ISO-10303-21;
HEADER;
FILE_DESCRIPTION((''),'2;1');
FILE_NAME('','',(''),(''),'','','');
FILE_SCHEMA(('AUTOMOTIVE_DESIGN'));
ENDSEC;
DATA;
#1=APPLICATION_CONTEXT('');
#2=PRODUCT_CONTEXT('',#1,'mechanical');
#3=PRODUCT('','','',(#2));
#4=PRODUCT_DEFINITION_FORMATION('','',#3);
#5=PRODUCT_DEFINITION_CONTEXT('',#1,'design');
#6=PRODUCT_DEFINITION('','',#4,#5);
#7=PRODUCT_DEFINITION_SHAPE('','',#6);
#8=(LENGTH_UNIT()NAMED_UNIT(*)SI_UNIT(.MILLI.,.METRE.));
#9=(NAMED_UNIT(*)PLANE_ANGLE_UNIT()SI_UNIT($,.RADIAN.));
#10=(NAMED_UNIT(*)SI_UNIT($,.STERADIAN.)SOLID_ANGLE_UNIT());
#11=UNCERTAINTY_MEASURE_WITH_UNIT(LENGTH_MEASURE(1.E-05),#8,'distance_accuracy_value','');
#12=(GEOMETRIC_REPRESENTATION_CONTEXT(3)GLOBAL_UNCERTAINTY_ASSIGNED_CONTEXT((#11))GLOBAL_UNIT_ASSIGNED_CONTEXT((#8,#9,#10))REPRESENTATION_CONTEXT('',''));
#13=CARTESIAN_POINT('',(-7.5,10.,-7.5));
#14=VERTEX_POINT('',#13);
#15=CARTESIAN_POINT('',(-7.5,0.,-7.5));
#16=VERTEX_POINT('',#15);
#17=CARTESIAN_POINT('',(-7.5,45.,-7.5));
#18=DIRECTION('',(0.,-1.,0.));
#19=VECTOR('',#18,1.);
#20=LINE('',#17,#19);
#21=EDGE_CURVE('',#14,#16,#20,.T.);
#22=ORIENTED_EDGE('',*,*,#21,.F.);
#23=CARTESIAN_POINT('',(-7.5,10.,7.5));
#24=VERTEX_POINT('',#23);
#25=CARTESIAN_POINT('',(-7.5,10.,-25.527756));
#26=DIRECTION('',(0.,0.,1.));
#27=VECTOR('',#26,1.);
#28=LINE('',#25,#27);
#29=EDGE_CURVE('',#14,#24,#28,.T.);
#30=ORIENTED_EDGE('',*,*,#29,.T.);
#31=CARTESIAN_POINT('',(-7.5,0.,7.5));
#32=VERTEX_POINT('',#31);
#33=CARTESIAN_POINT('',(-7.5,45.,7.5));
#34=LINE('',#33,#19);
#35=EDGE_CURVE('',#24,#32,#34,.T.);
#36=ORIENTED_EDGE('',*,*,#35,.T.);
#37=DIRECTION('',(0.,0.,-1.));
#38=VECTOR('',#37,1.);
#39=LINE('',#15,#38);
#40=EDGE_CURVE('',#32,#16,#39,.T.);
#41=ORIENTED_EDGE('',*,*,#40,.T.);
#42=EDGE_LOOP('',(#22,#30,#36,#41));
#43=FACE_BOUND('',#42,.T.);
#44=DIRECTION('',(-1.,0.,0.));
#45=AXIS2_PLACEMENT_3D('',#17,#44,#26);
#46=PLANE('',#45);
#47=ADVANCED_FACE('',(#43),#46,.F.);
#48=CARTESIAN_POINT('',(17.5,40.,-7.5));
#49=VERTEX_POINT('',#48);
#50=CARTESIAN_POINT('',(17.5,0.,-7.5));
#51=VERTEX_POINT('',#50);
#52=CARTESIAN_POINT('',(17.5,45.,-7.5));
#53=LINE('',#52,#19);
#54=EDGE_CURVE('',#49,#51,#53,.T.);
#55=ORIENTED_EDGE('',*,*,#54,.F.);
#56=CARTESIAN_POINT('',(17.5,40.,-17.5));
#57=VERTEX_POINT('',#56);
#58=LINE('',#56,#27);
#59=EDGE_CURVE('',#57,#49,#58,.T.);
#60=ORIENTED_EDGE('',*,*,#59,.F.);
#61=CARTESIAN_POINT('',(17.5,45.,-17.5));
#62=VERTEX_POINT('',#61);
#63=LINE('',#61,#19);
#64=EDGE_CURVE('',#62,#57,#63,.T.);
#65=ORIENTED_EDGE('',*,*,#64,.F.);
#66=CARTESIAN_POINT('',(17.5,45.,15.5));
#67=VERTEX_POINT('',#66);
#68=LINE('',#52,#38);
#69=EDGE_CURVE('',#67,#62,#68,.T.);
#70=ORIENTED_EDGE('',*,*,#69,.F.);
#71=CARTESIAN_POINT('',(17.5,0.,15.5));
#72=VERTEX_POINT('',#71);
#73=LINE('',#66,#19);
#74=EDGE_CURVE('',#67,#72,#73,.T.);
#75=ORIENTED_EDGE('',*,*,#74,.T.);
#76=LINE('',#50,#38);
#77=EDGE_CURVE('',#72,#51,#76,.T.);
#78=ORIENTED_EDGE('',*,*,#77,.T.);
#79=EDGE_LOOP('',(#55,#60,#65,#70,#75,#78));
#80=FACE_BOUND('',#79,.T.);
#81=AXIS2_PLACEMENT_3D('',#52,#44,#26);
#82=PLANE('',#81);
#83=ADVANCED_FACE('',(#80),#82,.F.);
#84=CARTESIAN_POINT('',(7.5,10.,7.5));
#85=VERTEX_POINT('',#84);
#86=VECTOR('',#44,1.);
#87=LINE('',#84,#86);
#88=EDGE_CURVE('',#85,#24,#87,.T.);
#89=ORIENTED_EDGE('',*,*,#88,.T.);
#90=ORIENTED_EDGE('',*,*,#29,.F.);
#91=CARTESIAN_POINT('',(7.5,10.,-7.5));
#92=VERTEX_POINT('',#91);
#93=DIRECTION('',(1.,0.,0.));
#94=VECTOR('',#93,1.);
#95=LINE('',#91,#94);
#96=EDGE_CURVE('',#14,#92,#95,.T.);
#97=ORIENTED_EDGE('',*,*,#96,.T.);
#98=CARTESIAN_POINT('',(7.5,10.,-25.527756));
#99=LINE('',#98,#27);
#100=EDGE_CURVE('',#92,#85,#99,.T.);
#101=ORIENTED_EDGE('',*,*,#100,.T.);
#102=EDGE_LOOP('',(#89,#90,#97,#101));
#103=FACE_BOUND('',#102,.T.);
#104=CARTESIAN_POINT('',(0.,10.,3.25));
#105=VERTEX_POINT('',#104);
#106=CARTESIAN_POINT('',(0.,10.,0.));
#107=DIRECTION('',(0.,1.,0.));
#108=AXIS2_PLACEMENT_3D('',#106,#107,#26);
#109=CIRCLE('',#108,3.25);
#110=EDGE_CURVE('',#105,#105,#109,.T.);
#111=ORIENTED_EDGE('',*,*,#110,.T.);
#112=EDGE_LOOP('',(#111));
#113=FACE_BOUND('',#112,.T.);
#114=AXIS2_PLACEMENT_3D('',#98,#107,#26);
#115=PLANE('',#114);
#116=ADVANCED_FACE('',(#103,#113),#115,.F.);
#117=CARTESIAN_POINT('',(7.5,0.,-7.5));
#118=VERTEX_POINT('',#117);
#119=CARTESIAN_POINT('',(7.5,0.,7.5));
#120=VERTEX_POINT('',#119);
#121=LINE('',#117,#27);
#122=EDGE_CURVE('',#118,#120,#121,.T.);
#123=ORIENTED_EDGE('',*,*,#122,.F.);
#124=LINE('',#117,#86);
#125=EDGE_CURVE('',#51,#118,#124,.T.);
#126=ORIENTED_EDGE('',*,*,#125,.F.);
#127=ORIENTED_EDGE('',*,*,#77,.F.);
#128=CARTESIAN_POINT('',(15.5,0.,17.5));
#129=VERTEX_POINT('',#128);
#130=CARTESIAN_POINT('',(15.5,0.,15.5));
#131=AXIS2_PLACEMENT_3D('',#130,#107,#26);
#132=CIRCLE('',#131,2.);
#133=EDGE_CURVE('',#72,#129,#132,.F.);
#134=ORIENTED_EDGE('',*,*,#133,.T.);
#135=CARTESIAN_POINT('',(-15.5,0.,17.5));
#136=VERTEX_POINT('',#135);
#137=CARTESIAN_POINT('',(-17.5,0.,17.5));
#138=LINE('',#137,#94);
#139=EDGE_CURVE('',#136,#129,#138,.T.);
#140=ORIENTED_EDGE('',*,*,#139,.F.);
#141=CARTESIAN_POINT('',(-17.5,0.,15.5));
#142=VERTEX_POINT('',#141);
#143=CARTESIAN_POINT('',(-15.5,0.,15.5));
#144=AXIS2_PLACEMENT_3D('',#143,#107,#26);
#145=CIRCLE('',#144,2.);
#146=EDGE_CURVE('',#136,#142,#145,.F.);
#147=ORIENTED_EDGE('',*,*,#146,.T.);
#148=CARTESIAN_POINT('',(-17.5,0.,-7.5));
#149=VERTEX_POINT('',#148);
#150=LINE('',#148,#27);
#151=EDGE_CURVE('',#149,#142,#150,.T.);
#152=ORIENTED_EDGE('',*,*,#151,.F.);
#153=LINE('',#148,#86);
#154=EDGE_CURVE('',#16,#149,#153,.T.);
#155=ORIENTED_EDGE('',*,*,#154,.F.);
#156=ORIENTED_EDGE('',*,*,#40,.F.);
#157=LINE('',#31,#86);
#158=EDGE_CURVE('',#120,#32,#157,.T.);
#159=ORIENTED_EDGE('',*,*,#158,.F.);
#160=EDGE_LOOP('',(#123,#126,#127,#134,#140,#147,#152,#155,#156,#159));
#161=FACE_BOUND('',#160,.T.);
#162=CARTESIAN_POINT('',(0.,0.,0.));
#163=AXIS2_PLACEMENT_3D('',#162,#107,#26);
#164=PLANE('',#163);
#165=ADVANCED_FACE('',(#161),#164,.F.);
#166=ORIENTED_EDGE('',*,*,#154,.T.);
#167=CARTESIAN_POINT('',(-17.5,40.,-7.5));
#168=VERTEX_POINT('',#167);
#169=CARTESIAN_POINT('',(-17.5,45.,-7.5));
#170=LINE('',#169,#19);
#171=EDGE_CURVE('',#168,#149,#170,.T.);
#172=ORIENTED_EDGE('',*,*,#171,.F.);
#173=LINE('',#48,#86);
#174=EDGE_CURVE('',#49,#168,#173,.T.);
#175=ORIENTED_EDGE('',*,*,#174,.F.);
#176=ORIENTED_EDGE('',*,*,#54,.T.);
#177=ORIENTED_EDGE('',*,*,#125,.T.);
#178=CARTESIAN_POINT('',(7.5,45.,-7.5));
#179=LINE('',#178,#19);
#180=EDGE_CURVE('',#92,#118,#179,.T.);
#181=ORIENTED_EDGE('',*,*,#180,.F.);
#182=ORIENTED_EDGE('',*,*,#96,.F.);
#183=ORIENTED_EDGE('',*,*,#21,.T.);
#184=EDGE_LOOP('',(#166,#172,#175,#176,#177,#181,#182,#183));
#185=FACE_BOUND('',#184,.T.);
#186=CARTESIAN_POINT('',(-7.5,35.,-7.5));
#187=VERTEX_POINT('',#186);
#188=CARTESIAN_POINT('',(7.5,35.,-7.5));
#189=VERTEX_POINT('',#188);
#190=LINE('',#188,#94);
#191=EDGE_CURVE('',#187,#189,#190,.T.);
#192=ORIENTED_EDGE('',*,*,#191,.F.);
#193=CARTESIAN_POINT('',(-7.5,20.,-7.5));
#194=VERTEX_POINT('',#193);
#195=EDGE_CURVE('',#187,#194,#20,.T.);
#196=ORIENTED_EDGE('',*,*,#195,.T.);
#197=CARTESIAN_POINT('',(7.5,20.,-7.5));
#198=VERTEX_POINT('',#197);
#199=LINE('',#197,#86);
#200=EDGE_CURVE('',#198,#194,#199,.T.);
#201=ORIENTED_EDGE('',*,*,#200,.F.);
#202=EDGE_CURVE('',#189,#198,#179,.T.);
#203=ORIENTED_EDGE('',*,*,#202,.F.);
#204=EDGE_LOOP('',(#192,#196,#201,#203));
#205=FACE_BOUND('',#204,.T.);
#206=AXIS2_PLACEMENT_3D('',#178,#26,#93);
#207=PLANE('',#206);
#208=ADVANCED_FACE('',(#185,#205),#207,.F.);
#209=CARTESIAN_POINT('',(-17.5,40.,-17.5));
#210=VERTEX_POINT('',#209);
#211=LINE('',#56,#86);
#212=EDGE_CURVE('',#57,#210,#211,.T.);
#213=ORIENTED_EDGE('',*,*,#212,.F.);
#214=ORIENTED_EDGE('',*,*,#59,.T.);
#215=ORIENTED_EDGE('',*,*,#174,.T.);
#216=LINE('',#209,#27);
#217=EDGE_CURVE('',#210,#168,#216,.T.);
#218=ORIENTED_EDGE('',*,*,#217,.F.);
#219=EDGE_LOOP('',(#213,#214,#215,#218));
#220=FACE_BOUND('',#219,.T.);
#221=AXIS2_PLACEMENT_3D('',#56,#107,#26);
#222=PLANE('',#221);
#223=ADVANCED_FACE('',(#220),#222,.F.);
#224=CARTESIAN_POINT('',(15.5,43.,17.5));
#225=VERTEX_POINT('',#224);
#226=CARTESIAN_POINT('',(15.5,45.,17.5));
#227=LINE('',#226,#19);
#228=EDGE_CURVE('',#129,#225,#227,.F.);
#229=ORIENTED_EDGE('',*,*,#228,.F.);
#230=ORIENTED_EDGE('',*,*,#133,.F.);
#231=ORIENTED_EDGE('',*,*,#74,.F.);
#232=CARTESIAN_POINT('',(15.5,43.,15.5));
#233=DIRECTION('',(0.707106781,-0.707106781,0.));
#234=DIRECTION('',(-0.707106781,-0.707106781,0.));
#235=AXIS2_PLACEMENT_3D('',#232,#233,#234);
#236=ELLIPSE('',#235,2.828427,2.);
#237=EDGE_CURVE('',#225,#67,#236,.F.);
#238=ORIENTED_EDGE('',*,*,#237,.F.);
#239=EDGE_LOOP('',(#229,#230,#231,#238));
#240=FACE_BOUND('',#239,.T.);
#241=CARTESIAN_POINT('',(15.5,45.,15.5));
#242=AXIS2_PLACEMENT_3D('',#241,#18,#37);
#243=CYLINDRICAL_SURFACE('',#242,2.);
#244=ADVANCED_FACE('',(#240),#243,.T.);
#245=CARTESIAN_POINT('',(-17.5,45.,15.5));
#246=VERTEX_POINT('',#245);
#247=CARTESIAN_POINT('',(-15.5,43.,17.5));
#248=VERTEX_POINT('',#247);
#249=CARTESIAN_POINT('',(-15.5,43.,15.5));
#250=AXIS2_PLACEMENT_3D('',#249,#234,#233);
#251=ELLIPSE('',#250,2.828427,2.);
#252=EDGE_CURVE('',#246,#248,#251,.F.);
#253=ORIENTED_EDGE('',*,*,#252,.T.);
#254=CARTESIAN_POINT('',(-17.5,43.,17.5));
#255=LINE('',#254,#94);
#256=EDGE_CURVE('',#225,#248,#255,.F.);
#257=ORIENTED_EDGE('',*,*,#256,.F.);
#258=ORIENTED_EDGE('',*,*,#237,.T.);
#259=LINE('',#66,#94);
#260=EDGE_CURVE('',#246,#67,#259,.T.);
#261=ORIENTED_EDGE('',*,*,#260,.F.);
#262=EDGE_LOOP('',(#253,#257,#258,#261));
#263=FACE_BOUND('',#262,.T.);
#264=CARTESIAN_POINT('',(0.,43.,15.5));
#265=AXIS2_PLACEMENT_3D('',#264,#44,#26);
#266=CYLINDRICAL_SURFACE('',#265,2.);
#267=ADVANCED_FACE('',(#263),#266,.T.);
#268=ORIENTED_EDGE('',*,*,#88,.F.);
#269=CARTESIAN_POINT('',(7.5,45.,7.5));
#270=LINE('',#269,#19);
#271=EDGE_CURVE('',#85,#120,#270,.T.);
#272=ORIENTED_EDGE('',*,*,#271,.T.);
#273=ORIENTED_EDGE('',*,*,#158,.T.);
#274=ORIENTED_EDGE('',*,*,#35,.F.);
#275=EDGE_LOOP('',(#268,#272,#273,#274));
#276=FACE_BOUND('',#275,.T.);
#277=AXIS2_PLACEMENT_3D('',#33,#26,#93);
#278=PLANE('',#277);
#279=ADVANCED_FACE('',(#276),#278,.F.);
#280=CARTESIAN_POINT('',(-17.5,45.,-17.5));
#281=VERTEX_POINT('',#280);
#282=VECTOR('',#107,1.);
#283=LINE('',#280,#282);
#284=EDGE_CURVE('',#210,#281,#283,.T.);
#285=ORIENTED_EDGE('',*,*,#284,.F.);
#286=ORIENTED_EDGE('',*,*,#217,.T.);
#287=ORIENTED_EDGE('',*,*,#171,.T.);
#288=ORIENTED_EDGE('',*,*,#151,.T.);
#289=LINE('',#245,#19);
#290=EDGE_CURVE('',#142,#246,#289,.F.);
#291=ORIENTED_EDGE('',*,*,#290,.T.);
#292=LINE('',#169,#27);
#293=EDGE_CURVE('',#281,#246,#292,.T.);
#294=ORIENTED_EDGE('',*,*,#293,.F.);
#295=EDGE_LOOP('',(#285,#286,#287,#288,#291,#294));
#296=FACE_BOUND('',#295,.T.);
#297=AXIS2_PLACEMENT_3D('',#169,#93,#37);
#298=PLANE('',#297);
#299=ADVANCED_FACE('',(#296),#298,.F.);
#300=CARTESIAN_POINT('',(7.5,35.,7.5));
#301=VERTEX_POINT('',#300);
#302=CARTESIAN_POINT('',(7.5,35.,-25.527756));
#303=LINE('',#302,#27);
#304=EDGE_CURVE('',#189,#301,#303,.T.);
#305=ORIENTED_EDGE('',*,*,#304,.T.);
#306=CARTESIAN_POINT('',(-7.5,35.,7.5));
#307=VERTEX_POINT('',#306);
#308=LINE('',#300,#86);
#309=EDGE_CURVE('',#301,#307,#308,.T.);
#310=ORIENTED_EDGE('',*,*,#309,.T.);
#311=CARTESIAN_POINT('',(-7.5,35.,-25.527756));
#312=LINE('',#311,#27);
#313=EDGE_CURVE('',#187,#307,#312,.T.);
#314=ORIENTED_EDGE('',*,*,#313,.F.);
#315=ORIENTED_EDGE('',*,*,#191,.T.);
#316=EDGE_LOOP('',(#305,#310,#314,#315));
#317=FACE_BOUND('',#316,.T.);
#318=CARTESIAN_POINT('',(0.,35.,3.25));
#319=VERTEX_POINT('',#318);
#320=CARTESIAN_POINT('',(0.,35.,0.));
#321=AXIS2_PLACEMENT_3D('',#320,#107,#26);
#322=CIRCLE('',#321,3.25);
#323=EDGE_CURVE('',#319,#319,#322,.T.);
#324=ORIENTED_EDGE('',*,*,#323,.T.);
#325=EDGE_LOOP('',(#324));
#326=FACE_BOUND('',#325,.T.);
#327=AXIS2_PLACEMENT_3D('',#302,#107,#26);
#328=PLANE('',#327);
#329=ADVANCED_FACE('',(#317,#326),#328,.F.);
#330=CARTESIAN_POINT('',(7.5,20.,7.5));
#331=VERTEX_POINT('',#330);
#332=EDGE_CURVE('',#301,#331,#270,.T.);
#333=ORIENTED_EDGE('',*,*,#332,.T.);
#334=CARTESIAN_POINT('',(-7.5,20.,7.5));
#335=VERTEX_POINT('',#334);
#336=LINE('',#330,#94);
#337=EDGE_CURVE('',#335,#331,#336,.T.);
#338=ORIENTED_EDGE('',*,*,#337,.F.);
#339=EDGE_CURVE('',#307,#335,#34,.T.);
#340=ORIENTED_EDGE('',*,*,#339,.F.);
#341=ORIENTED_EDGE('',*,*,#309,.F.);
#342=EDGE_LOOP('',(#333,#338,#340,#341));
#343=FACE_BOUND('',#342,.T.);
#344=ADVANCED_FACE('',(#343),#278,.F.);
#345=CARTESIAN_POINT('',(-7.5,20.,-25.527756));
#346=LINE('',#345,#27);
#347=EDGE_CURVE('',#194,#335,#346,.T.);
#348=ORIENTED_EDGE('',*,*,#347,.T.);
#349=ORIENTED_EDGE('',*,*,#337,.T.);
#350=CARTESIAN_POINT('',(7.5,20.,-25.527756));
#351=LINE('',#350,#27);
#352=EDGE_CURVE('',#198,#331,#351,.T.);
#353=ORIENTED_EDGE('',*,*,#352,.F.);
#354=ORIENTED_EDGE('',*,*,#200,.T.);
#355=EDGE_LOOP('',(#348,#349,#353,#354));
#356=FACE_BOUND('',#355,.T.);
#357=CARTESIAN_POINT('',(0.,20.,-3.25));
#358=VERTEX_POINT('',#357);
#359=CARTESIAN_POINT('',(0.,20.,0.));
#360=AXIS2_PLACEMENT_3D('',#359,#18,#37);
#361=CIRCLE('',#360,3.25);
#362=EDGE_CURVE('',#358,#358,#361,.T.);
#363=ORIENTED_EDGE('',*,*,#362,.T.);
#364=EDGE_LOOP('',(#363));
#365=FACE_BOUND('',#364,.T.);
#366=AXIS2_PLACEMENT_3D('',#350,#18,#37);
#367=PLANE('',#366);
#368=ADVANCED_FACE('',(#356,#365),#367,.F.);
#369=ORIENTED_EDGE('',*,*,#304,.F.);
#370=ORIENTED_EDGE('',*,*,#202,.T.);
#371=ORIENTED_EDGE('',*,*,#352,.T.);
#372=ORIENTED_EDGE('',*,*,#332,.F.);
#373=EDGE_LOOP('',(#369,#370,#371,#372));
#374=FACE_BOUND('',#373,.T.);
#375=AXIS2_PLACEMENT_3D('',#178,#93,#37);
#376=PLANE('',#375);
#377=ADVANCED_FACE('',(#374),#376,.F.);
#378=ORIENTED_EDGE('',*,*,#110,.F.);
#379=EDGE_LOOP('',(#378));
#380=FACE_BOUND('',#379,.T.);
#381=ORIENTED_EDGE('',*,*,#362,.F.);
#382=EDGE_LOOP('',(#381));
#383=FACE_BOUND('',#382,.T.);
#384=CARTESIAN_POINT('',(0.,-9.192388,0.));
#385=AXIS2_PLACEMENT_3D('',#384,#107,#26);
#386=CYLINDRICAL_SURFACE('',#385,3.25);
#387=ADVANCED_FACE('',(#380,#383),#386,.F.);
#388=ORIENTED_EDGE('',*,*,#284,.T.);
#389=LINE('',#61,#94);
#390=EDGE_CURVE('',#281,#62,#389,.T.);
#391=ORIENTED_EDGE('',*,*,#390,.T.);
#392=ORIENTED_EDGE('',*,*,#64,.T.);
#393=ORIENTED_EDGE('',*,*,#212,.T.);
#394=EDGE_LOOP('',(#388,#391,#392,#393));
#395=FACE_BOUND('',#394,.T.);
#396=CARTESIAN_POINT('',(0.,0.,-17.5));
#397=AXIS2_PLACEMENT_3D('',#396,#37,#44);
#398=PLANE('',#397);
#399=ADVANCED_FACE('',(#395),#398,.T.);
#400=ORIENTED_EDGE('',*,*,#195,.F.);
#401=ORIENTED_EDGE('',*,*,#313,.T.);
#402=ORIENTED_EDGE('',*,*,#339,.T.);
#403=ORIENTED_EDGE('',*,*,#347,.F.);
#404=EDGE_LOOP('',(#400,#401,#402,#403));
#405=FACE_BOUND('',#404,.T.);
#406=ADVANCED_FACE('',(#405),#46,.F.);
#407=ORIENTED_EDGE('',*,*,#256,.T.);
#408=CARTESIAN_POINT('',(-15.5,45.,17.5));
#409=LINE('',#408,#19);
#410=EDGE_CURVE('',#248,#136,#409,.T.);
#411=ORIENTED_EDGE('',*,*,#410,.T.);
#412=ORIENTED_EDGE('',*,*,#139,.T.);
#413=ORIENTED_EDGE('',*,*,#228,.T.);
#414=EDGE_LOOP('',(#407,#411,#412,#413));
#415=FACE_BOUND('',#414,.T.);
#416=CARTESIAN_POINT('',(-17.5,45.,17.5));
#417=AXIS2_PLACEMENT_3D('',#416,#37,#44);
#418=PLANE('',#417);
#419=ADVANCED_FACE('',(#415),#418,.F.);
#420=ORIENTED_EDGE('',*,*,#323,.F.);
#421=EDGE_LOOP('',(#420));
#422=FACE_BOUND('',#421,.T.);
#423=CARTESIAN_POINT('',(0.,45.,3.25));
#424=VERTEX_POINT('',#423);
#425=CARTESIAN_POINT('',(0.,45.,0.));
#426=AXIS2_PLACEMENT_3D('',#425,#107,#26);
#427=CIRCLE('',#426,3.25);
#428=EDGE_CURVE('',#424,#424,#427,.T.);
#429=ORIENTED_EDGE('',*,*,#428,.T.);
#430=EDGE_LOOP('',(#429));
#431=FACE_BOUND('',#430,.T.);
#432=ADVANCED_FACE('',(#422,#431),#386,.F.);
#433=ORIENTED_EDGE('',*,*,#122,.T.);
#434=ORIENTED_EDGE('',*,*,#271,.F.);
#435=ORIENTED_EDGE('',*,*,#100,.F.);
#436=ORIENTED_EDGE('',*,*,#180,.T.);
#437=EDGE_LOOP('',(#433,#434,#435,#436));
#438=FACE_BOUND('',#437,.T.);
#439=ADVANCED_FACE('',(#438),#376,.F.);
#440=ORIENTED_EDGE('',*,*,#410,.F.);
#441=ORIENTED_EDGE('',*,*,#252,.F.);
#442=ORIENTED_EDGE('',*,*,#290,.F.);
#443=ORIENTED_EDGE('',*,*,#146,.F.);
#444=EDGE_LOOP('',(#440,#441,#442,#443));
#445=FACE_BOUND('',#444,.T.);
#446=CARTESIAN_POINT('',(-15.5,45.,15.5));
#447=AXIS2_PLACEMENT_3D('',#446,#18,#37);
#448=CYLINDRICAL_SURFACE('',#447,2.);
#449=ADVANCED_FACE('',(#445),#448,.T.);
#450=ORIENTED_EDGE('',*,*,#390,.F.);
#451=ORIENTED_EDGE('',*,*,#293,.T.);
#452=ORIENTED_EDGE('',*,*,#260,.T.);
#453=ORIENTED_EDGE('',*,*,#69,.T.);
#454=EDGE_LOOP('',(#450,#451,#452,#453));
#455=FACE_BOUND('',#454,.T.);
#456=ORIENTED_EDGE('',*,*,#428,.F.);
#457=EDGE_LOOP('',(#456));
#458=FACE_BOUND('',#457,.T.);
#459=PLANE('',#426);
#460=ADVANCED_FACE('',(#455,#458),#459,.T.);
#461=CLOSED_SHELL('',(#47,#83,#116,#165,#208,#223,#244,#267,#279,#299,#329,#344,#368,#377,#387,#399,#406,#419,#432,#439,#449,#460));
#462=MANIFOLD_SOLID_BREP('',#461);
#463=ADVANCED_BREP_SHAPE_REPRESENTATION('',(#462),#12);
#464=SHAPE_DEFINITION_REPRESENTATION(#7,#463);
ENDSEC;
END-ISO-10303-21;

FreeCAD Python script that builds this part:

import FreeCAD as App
import Part
import Sketcher


def edges_at(feature, points):
    """Names of the edges that pass closest to the given points."""
    edges = feature.Shape.Edges
    near = lambda p: min(range(len(edges)), key=lambda i: edges[i].distToShape(Part.Vertex(*p))[0])
    return sorted({f"Edge{near(p) + 1}" for p in points})


def add_polygon(sketch, points):
    """Adds a closed chain of lines whose ends are joined by coincident constraints."""
    first, n = sketch.GeometryCount, len(points)
    for a, b in zip(points, points[1:] + points[:1]):
        sketch.addGeometry(Part.LineSegment(App.Vector(*a, 0), App.Vector(*b, 0)), False)
    for i in range(n):
        sketch.addConstraint(Sketcher.Constraint("Coincident", first + i, 2, first + (i + 1) % n, 1))

doc = App.newDocument("Part")
body = doc.addObject("PartDesign::Body", "Body")

# Sketch on XZ plane
sketch1 = body.newObject("Sketcher::SketchObject", "Sketch")
sketch1.AttachmentSupport = (doc.getObject("XZ_Plane"), [""])
sketch1.MapMode = "FlatFace"
add_polygon(sketch1, [(-8, -8), (-18, -8), (-18, 18), (18, 18), (18, -8), (8, -8), (8, 8), (-8, 8)])  # lines 0-7
sketch1.addConstraint(Sketcher.Constraint("Horizontal", 0))
sketch1.addConstraint(Sketcher.Constraint("Vertical", 1))
sketch1.addConstraint(Sketcher.Constraint("Horizontal", 2))
sketch1.addConstraint(Sketcher.Constraint("Vertical", 3))
sketch1.addConstraint(Sketcher.Constraint("Horizontal", 4))
sketch1.addConstraint(Sketcher.Constraint("Vertical", 5))
sketch1.addConstraint(Sketcher.Constraint("Horizontal", 6))
sketch1.addConstraint(Sketcher.Constraint("Vertical", 7))
sketch1.addConstraint(Sketcher.Constraint("Symmetric", 4, 2, 6, 2, -1, 1))
sketch1.addConstraint(Sketcher.Constraint("Symmetric", 0, 2, 3, 2, -2))
sketch1.addConstraint(Sketcher.Constraint("Equal", 6, 5))
sketch1.addConstraint(Sketcher.Constraint("DistanceX", 0, 2, 0, 1, 10.0))
sketch1.addConstraint(Sketcher.Constraint("DistanceX", 2, 1, 2, 2, 35.0))
sketch1.addConstraint(Sketcher.Constraint("DistanceY", 1, 1, 1, 2, 25.0))
pad1 = body.newObject("PartDesign::Pad", "Pad")
pad1.Profile = sketch1
pad1.Length = 45
pad1.Reversed = True

# Sketch on XY plane
sketch2 = body.newObject("Sketcher::SketchObject", "Sketch001")
sketch2.AttachmentSupport = (doc.getObject("XY_Plane"), [""])
sketch2.MapMode = "FlatFace"
sketch2.AttachmentOffset = App.Placement(App.Vector(0, 0, 7.5), App.Rotation())
add_polygon(sketch2, [(8, 45), (8, 35), (-8, 35), (-8, 45)])  # lines 0-3
add_polygon(sketch2, [(8, 20), (8, 10), (-8, 10), (-8, 20)])  # lines 4-7
sketch2.addConstraint(Sketcher.Constraint("Vertical", 0))
sketch2.addConstraint(Sketcher.Constraint("Horizontal", 1))
sketch2.addConstraint(Sketcher.Constraint("Vertical", 2))
sketch2.addConstraint(Sketcher.Constraint("Horizontal", 3))
sketch2.addConstraint(Sketcher.Constraint("Vertical", 4))
sketch2.addConstraint(Sketcher.Constraint("Horizontal", 5))
sketch2.addConstraint(Sketcher.Constraint("Vertical", 6))
sketch2.addConstraint(Sketcher.Constraint("Horizontal", 7))
sketch2.addConstraint(Sketcher.Constraint("Vertical", 3, 2, 4, 2))
sketch2.addConstraint(Sketcher.Constraint("Vertical", 2, 2, 5, 2))
sketch2.addConstraint(Sketcher.Constraint("Equal", 2, 4))
sketch2.addConstraint(Sketcher.Constraint("DistanceX", 1, 2, 1, 1, 15.0))
sketch2.addConstraint(Sketcher.Constraint("DistanceY", 0, 2, 0, 1, 10.0))
sketch2.addConstraint(Sketcher.Constraint("DistanceY", -1, 1, 0, 2, 35.0))
sketch2.addConstraint(Sketcher.Constraint("DistanceY", -1, 1, 4, 2, 10.0))
sketch2.addConstraint(Sketcher.Constraint("DistanceX", -1, 1, 0, 2, 7.5))
pad2 = body.newObject("PartDesign::Pad", "Pad001")
pad2.Profile = sketch2
pad2.Length = 15
pad2.Reversed = True

# Sketch on XZ plane
sketch3 = body.newObject("Sketcher::SketchObject", "Sketch002")
sketch3.AttachmentSupport = (doc.getObject("XZ_Plane"), [""])
sketch3.MapMode = "FlatFace"
sketch3.AttachmentOffset = App.Placement(App.Vector(0, 0, -10), App.Rotation())
sketch3.addGeometry(Part.Circle(App.Vector(0, 0, 0), App.Vector(0, 0, 1), 3.2), False)
sketch3.addConstraint(Sketcher.Constraint("Coincident", 0, 3, -1, 1))
sketch3.addConstraint(Sketcher.Constraint("Diameter", 0, 6.5))
pocket1 = body.newObject("PartDesign::Pocket", "Pocket")
pocket1.Profile = sketch3
pocket1.Length = 35

# Sketch on XY plane
sketch4 = body.newObject("Sketcher::SketchObject", "Sketch003")
sketch4.AttachmentSupport = (doc.getObject("XY_Plane"), [""])
sketch4.MapMode = "FlatFace"
sketch4.AttachmentOffset = App.Placement(App.Vector(0, 0, -7.5), App.Rotation())
add_polygon(sketch4, [(18, 45), (18, 40), (-18, 40), (-18, 45)])  # lines 0-3
sketch4.addConstraint(Sketcher.Constraint("Vertical", 0))
sketch4.addConstraint(Sketcher.Constraint("Horizontal", 1))
sketch4.addConstraint(Sketcher.Constraint("Vertical", 2))
sketch4.addConstraint(Sketcher.Constraint("Horizontal", 3))
sketch4.addConstraint(Sketcher.Constraint("DistanceX", 1, 2, 1, 1, 35.0))
sketch4.addConstraint(Sketcher.Constraint("DistanceY", 0, 2, 0, 1, 5.0))
sketch4.addConstraint(Sketcher.Constraint("DistanceY", -1, 1, 0, 2, 40.0))
sketch4.addConstraint(Sketcher.Constraint("DistanceX", -1, 1, 0, 2, 17.5))
pad3 = body.newObject("PartDesign::Pad", "Pad002")
pad3.Profile = sketch4
pad3.Length = 10
pad3.Reversed = True
doc.recompute()

fillet = body.newObject("PartDesign::Fillet", "Fillet")
fillet.Base = (pad3, edges_at(pad3, [(17.5, 22.5, 17.5), (-17.5, 22.5, 17.5), (0, 45, 17.5)]))
fillet.Radius = 2

doc.recompute()
